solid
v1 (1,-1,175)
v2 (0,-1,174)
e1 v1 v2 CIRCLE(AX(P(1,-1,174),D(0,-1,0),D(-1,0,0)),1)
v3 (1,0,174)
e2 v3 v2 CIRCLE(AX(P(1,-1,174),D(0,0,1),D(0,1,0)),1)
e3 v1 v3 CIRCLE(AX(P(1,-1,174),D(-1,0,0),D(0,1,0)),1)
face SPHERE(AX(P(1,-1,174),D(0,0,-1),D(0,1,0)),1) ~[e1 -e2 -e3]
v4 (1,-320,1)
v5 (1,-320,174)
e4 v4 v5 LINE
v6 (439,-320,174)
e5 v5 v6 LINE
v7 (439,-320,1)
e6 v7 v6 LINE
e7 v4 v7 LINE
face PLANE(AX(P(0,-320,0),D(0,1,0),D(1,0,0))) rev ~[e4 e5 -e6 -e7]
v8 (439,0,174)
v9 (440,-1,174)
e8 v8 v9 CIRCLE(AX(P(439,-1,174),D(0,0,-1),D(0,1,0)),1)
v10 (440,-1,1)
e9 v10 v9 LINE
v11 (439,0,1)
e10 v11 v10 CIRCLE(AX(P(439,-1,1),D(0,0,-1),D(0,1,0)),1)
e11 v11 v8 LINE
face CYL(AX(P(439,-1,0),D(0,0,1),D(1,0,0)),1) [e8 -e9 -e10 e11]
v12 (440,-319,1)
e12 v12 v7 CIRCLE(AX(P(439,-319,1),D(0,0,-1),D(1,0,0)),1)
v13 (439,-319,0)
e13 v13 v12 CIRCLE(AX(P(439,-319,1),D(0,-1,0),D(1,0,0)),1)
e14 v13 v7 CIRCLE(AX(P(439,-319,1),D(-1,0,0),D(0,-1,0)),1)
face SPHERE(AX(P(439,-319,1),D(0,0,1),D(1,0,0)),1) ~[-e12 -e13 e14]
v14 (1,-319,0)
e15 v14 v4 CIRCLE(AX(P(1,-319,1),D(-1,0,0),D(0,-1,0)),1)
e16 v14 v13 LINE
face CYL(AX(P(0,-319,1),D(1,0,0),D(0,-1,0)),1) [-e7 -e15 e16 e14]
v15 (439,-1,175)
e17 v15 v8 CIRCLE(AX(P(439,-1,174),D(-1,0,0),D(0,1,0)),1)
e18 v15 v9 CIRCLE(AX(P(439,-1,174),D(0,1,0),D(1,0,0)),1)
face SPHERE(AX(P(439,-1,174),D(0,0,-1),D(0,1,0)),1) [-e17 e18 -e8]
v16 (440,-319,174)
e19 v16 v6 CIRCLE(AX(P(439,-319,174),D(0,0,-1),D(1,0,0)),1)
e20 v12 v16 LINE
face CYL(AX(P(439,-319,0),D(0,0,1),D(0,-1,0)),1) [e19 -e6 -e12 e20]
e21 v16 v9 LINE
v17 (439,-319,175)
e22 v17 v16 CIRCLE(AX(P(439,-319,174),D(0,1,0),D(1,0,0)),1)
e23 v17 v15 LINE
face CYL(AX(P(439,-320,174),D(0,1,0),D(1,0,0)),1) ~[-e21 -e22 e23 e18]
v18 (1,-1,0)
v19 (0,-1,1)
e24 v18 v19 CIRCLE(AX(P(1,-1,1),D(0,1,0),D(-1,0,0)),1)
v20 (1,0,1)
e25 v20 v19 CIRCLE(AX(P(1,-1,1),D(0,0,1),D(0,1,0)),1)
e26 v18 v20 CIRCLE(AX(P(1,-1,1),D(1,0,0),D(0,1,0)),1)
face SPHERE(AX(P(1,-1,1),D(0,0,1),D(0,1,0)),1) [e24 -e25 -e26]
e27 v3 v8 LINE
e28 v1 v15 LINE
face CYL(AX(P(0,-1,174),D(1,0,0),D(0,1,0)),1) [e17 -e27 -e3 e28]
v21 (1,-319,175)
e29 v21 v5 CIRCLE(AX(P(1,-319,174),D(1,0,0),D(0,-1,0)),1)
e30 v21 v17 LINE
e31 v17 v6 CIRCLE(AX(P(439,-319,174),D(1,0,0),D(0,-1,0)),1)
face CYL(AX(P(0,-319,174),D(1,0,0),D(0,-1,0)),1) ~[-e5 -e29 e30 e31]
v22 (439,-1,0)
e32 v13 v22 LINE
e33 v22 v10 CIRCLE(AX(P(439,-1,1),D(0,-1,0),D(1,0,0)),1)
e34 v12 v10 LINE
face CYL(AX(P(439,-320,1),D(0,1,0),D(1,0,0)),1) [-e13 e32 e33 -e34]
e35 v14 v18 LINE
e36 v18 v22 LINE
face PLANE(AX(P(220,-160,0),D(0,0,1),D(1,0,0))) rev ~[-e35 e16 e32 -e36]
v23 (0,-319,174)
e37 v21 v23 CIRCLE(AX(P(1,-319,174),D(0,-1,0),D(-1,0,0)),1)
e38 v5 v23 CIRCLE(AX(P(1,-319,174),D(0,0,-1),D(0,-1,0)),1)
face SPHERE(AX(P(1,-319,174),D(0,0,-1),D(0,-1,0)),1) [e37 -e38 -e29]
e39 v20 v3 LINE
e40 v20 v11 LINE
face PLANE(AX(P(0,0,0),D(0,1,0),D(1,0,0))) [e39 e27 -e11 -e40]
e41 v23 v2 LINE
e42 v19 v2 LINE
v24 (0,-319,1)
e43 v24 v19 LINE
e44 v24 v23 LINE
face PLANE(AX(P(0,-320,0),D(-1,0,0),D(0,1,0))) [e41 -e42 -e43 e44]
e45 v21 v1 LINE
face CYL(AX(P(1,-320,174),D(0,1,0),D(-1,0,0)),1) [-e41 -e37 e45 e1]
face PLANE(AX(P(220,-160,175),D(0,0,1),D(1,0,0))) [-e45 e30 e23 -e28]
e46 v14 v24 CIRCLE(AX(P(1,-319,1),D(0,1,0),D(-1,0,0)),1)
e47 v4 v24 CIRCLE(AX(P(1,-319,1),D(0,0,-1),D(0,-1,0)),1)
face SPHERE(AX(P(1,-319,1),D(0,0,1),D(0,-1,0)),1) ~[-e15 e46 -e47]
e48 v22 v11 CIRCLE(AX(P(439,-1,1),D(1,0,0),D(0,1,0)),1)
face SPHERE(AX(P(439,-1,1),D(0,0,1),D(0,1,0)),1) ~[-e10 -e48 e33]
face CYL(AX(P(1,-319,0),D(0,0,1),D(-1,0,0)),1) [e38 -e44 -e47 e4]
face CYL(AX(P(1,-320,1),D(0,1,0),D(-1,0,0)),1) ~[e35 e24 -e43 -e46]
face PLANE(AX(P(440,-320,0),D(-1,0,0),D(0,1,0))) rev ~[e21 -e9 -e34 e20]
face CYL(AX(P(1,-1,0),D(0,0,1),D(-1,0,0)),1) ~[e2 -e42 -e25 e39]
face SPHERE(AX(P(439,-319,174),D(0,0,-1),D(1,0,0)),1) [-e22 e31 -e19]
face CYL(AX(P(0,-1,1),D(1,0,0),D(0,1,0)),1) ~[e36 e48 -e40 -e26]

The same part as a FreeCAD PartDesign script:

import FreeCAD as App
import Part
import Sketcher
Q = App.Units.Quantity

doc = App.newDocument("Part")
params = doc.addObject("Spreadsheet::Sheet", "Params")
for row, (alias, value) in enumerate([
    ("sketch1_width", "440 mm"),
    ("sketch1_height", "320 mm"),
    ("pad1_length", "175 mm"),
    ("fillet_radius", "1 mm"),
], start=1):
    params.set(f"A{row}", alias)
    params.set(f"B{row}", "=" + value)
    params.setAlias(f"B{row}", alias)

body = doc.addObject("PartDesign::Body", "Body")

# Sketch on XY plane
sketch1 = doc.addObject("Sketcher::SketchObject", "Sketch")
body.addObject(sketch1)
sketch1.AttachmentSupport = (doc.XY_Plane, [""])
sketch1.MapMode = "FlatFace"
sketch1.addGeometry([
    Part.LineSegment(App.Vector(0, 0, 0), App.Vector(0, -320, 0)),
    Part.LineSegment(App.Vector(0, -320, 0), App.Vector(440, -320, 0)),
    Part.LineSegment(App.Vector(440, -320, 0), App.Vector(440, 0, 0)),
    Part.LineSegment(App.Vector(440, 0, 0), App.Vector(0, 0, 0)),
], False)
sketch1.addConstraint([
    Sketcher.Constraint("Coincident", 0, 2, 1, 1),
    Sketcher.Constraint("Coincident", 1, 2, 2, 1),
    Sketcher.Constraint("Coincident", 2, 2, 3, 1),
    Sketcher.Constraint("Coincident", 3, 2, 0, 1),
    Sketcher.Constraint("Vertical", 0),
    Sketcher.Constraint("Horizontal", 1),
    Sketcher.Constraint("Vertical", 2),
    Sketcher.Constraint("Horizontal", 3),
    Sketcher.Constraint("Coincident", 3, 2, -1, 1),
    Sketcher.Constraint("DistanceX", 1, 1, 1, 2, Q("440 mm")),
    Sketcher.Constraint("DistanceY", 0, 2, 0, 1, Q("320 mm")),
])
sketch1.setExpression("Constraints[9]", "Params.sketch1_width")
sketch1.setExpression("Constraints[10]", "Params.sketch1_height")
pad1 = doc.addObject("PartDesign::Pad", "Pad")
body.addObject(pad1)
pad1.Profile = sketch1
pad1.setExpression("Length", "Params.pad1_length")
doc.recompute()

fillet = doc.addObject("PartDesign::Fillet", "Fillet")
body.addObject(fillet)
fillet.Base = (pad1, ["Edge1"])
fillet.UseAllEdges = True
fillet.setExpression("Radius", "Params.fillet_radius")

doc.recompute()
